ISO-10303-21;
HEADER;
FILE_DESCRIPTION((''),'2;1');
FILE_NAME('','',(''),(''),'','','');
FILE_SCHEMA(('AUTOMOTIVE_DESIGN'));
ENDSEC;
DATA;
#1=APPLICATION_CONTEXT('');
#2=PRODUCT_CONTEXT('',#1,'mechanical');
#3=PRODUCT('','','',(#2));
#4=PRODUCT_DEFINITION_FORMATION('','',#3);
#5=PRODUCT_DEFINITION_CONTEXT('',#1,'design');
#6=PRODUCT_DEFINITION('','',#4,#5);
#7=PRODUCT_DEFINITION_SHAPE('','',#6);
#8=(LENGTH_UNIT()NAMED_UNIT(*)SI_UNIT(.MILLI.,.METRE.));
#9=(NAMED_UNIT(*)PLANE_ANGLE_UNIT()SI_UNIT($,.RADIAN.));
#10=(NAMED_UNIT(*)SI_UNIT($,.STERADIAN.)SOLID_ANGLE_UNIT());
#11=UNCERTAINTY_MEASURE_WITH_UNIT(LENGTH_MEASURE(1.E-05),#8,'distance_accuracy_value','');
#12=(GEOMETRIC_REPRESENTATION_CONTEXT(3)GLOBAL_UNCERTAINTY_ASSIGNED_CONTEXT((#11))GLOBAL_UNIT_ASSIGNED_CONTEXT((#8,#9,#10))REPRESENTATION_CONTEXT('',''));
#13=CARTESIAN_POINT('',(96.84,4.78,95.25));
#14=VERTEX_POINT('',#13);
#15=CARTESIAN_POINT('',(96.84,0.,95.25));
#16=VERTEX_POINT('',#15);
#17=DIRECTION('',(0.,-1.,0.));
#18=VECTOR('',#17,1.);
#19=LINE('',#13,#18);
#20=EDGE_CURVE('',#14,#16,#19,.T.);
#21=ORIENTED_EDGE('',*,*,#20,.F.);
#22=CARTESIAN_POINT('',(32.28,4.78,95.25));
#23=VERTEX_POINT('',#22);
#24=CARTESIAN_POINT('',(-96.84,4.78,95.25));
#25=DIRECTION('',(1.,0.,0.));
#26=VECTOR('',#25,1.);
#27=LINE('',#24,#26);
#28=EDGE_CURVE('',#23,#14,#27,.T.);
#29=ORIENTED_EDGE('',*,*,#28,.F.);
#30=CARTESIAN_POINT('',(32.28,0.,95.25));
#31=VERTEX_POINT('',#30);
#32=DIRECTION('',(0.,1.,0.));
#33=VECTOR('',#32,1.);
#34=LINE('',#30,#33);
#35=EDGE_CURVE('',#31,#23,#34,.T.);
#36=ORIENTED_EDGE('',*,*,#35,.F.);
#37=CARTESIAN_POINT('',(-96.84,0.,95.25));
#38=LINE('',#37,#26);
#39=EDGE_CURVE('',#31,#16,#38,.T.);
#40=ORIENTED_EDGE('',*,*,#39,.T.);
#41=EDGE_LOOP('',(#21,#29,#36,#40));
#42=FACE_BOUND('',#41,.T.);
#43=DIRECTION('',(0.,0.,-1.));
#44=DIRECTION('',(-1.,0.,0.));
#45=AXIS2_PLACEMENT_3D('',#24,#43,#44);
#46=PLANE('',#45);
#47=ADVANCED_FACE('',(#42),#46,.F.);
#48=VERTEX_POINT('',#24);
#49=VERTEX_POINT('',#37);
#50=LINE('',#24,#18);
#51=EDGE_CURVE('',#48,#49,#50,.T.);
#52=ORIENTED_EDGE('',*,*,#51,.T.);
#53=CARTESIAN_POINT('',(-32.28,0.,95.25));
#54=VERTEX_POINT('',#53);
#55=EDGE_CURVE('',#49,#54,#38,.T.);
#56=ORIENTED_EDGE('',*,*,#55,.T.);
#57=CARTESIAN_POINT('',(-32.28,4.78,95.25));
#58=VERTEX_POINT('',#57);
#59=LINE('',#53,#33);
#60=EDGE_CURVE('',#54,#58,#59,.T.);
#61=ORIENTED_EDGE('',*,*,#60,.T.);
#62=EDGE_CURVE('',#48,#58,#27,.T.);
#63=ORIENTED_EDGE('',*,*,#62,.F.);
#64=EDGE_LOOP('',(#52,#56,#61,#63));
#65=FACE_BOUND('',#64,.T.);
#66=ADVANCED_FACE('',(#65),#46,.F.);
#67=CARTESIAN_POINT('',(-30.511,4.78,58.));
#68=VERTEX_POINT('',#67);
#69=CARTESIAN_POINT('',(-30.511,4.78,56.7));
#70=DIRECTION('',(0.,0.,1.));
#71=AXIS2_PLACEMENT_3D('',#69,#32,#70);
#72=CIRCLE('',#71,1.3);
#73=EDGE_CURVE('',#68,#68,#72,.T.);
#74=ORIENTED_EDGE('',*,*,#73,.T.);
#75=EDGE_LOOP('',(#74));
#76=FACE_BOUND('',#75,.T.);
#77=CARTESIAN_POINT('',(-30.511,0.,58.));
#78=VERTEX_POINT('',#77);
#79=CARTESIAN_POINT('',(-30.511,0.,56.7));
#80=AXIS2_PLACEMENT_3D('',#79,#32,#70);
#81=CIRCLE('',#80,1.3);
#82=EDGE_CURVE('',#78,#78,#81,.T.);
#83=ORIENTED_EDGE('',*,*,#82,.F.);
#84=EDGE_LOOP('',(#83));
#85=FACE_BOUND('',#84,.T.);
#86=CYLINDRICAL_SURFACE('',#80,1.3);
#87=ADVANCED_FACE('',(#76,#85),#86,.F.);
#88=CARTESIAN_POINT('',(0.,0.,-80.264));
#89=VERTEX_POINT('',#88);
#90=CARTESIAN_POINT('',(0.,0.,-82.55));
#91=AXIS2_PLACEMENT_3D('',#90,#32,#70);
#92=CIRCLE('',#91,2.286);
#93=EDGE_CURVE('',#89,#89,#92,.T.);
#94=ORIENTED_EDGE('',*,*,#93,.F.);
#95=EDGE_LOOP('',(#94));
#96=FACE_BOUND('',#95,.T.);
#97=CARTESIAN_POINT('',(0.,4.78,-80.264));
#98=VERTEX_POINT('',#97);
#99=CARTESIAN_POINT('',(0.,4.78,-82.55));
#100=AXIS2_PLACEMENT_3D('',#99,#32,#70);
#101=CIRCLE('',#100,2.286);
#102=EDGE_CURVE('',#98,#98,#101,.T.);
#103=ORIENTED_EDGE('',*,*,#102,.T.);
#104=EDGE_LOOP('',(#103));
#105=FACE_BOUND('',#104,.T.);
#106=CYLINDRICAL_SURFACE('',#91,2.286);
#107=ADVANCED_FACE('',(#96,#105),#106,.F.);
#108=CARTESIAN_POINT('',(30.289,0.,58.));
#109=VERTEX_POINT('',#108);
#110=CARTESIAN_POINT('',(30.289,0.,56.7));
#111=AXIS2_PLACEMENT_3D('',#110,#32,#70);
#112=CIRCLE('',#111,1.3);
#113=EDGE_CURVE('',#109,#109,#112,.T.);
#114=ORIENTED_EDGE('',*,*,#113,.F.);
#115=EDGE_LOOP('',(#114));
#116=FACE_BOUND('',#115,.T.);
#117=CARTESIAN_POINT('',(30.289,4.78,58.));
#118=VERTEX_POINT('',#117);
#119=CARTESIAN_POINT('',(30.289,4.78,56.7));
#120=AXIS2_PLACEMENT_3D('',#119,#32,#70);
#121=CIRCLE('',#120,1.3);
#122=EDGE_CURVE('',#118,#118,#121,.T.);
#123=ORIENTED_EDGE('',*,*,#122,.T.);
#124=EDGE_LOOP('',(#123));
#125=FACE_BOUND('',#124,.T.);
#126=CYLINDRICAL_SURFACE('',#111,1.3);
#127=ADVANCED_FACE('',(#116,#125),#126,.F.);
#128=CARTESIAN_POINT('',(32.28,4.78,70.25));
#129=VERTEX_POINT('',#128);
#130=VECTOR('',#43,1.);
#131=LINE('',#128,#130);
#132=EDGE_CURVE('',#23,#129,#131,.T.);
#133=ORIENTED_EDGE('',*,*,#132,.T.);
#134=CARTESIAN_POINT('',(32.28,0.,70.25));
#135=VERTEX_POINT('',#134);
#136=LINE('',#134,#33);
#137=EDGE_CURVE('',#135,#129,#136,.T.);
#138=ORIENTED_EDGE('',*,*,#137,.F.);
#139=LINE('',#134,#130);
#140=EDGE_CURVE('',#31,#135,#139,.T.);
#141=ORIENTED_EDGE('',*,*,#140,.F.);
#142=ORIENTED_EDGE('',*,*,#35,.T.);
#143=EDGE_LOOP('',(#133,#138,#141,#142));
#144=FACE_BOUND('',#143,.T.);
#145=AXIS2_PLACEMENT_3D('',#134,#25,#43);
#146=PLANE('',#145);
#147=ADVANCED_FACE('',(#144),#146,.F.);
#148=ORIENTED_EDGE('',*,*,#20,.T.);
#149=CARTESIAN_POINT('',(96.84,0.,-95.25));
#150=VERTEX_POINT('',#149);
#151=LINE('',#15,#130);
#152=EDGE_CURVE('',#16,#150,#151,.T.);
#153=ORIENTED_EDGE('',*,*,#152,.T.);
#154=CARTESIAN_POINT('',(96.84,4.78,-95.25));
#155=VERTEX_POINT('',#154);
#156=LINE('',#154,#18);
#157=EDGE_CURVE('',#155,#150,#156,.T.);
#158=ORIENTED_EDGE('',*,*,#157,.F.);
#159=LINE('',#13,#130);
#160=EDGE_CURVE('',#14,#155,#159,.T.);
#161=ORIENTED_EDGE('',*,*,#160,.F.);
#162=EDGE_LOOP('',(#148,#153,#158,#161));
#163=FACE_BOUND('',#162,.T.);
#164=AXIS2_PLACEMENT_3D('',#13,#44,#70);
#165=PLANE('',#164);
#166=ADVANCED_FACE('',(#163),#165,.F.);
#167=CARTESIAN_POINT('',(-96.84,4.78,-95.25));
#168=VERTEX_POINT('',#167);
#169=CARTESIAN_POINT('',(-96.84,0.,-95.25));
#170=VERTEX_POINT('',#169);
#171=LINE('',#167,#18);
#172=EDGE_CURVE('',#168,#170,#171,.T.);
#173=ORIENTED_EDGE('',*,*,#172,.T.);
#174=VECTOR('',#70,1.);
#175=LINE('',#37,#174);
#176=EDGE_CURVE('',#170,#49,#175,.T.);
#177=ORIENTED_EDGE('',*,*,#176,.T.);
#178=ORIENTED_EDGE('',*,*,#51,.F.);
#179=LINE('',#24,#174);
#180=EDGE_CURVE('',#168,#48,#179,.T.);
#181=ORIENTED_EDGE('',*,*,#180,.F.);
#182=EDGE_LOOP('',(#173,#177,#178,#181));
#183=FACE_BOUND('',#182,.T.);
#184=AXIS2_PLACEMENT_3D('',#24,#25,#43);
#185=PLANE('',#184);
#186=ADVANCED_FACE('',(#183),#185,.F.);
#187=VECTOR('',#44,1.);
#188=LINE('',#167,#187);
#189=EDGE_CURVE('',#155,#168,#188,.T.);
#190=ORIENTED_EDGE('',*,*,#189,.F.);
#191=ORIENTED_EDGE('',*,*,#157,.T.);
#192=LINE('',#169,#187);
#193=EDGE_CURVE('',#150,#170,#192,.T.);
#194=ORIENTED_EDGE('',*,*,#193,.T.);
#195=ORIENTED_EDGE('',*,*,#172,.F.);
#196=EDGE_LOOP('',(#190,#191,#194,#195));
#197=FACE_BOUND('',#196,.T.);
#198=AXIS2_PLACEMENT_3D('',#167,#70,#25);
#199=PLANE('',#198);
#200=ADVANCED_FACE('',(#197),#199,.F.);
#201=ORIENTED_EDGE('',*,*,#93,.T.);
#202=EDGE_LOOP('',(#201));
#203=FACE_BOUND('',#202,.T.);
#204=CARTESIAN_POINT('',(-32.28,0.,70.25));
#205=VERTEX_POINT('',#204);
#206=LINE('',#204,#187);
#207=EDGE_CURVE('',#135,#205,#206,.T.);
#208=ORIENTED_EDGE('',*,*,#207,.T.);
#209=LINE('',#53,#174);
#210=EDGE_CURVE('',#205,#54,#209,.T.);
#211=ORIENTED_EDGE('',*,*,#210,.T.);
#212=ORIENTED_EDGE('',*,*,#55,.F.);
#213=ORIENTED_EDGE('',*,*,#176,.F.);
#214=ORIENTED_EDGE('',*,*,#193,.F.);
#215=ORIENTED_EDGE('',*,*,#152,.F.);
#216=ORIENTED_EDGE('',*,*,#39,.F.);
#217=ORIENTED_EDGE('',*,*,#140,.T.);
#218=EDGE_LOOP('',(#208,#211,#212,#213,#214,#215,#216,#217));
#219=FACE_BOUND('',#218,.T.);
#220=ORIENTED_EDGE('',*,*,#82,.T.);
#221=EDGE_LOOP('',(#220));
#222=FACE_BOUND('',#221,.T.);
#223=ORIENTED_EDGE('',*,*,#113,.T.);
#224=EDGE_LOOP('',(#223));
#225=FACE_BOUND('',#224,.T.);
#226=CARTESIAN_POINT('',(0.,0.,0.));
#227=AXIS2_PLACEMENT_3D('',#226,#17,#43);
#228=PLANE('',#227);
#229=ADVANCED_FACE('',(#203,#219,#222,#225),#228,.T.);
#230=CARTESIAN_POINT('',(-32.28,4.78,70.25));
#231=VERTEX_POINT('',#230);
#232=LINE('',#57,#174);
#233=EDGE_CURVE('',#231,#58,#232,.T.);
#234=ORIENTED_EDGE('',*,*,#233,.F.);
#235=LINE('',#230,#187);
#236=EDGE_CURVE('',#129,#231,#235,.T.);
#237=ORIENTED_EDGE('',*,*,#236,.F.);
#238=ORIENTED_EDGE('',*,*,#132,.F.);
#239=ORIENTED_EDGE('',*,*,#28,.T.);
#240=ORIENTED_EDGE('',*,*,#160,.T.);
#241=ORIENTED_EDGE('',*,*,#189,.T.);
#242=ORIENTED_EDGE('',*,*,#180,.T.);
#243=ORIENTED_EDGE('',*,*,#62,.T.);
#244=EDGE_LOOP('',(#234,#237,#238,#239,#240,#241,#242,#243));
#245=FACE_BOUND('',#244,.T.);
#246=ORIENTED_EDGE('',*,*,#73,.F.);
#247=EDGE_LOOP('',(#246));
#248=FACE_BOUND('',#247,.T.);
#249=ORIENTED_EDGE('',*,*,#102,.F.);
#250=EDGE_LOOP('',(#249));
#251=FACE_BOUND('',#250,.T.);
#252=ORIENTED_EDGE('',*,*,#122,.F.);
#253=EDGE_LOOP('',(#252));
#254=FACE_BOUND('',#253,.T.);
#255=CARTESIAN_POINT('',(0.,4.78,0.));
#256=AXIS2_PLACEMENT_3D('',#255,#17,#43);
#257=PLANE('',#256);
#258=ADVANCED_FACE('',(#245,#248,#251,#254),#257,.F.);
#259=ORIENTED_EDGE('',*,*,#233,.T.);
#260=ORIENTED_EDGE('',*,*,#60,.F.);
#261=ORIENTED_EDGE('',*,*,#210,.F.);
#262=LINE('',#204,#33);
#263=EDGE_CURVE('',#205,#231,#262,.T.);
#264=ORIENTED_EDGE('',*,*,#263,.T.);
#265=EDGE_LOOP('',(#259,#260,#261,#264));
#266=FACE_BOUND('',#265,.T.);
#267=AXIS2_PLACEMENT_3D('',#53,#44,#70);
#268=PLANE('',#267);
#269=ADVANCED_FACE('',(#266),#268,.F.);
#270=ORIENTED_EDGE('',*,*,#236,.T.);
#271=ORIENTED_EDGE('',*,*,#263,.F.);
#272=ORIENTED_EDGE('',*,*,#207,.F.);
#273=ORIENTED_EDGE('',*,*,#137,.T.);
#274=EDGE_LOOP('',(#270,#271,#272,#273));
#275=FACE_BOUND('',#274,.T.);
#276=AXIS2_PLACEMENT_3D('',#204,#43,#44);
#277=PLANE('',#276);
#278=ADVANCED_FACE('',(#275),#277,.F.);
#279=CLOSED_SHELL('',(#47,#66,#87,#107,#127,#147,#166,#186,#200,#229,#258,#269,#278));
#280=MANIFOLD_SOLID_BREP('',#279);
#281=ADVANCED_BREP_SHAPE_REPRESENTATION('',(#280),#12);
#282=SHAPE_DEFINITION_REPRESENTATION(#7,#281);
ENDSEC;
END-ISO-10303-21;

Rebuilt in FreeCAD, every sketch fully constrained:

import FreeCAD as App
import Part
import Sketcher
from FreeCAD import Vector
Q = App.Units.Quantity


def add_polygon(sketch, points):
    """Adds a closed chain of lines whose ends are joined by coincident constraints."""
    first, n = sketch.GeometryCount, len(points)
    for a, b in zip(points, points[1:] + points[:1]):
        sketch.addGeometry(Part.LineSegment(App.Vector(*a, 0), App.Vector(*b, 0)), False)
    for i in range(n):
        sketch.addConstraint(Sketcher.Constraint("Coincident", first + i, 2, first + (i + 1) % n, 1))

doc = App.newDocument("Part")
body = doc.addObject("PartDesign::Body", "Body")

sketch1 = doc.addObject("Sketcher::SketchObject", "Sketch")
body.addObject(sketch1)
sketch1.AttachmentSupport = (doc.XZ_Plane, [""])
sketch1.MapMode = "FlatFace"
add_polygon(sketch1, [(-97, -95), (-97, 95), (97, 95), (97, -95)])
sketch1.addConstraint(Sketcher.Constraint("Vertical", 0))
sketch1.addConstraint(Sketcher.Constraint("Horizontal", 1))
sketch1.addConstraint(Sketcher.Constraint("Vertical", 2))
sketch1.addConstraint(Sketcher.Constraint("Horizontal", 3))
sketch1.addConstraint(Sketcher.Constraint("Symmetric", 0, 2, 2, 2, -1, 1))
sketch1.addConstraint(Sketcher.Constraint("DistanceY", 0, 1, 0, 2, Q("190.5 mm")))
sketch1.addConstraint(Sketcher.Constraint("DistanceX", 1, 1, 1, 2, Q("193.68 mm")))
pad1 = doc.addObject("PartDesign::Pad", "Pad")
body.addObject(pad1)
pad1.Profile = sketch1
pad1.Length = 4.78
pad1.Reversed = True

sketch2 = doc.addObject("Sketcher::SketchObject", "Sketch001")
body.addObject(sketch2)
sketch2.AttachmentSupport = (doc.XZ_Plane, [""])
sketch2.MapMode = "FlatFace"
sketch2.AttachmentOffset = App.Placement(Vector(0, 0, -4.78), App.Rotation())
sketch2.addGeometry(Part.Circle(Vector(0, -82.5, 0), Vector(0, 0, 1), 2.3), False)
sketch2.addConstraint(Sketcher.Constraint("PointOnObject", 0, 3, -2))
sketch2.addConstraint(Sketcher.Constraint("Diameter", 0, Q("4.572 mm")))
sketch2.addConstraint(Sketcher.Constraint("DistanceY", 0, 3, -1, 1, Q("82.55 mm")))
pocket1 = doc.addObject("PartDesign::Pocket", "Pocket")
body.addObject(pocket1)
pocket1.Profile = sketch2
pocket1.Type = "ThroughAll"
pocket1.Reversed = True

sketch3 = doc.addObject("Sketcher::SketchObject", "Sketch002")
body.addObject(sketch3)
sketch3.AttachmentSupport = (doc.XZ_Plane, [""])
sketch3.MapMode = "FlatFace"
sketch3.AttachmentOffset = App.Placement(Vector(0, 0, -4.78), App.Rotation())
add_polygon(sketch3, [(-32, 95), (32, 95), (32, 70), (-32, 70)])
sketch3.addConstraint(Sketcher.Constraint("Horizontal", 0))
sketch3.addConstraint(Sketcher.Constraint("Vertical", 1))
sketch3.addConstraint(Sketcher.Constraint("Horizontal", 2))
sketch3.addConstraint(Sketcher.Constraint("Vertical", 3))
sketch3.addConstraint(Sketcher.Constraint("DistanceY", 1, 2, 1, 1, Q("25 mm")))
sketch3.addConstraint(Sketcher.Constraint("DistanceX", 0, 1, 0, 2, Q("64.56 mm")))
sketch3.addConstraint(Sketcher.Constraint("DistanceX", -1, 1, 0, 2, Q("32.28 mm")))
sketch3.addConstraint(Sketcher.Constraint("DistanceY", -1, 1, 0, 2, Q("95.25 mm")))
pocket2 = doc.addObject("PartDesign::Pocket", "Pocket001")
body.addObject(pocket2)
pocket2.Profile = sketch3
pocket2.Type = "ThroughAll"
pocket2.Reversed = True

sketch4 = doc.addObject("Sketcher::SketchObject", "Sketch003")
body.addObject(sketch4)
sketch4.AttachmentSupport = (doc.XZ_Plane, [""])
sketch4.MapMode = "FlatFace"
sketch4.AttachmentOffset = App.Placement(Vector(0, 0, -4.78), App.Rotation())
sketch4.addGeometry(Part.Circle(Vector(-30.5, 56.7, 0), Vector(0, 0, 1), 1.3), False)
sketch4.addGeometry(Part.Circle(Vector(30.3, 56.7, 0), Vector(0, 0, 1), 1.3), False)
sketch4.addConstraint(Sketcher.Constraint("Equal", 0, 1))
sketch4.addConstraint(Sketcher.Constraint("Horizontal", 0, 3, 1, 3))
sketch4.addConstraint(Sketcher.Constraint("Diameter", 0, Q("2.6 mm")))
sketch4.addConstraint(Sketcher.Constraint("DistanceY", -1, 1, 0, 3, Q("56.7 mm")))
sketch4.addConstraint(Sketcher.Constraint("DistanceX", 0, 3, 1, 3, Q("60.8 mm")))
sketch4.addConstraint(Sketcher.Constraint("DistanceX", 0, 3, -1, 1, Q("30.511 mm")))
pocket3 = doc.addObject("PartDesign::Pocket", "Pocket002")
body.addObject(pocket3)
pocket3.Profile = sketch4
pocket3.Type = "ThroughAll"
pocket3.Reversed = True

doc.recompute()
